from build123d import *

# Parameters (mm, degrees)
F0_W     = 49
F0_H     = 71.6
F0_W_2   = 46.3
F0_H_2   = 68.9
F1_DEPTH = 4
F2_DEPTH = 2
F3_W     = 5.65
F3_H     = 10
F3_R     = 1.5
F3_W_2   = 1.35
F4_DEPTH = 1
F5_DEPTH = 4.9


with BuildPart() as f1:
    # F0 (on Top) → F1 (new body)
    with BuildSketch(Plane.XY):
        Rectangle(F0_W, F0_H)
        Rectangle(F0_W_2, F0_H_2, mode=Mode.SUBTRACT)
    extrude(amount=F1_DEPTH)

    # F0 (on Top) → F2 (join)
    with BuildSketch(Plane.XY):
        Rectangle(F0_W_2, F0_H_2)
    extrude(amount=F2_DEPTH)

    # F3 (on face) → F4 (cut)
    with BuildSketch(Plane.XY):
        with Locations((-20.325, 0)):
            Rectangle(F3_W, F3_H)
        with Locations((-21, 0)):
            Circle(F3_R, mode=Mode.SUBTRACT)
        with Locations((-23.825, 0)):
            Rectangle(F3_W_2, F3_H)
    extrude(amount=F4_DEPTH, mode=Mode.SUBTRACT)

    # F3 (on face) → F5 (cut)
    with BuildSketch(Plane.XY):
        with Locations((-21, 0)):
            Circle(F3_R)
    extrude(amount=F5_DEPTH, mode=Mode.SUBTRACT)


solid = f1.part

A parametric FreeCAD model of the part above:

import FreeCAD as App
import Part
import Sketcher
from FreeCAD import Vector
Q = App.Units.Quantity


def add_polygon(sketch, points):
    """Adds a closed chain of lines whose ends are joined by coincident constraints."""
    first, n = sketch.GeometryCount, len(points)
    for a, b in zip(points, points[1:] + points[:1]):
        sketch.addGeometry(Part.LineSegment(App.Vector(*a, 0), App.Vector(*b, 0)), False)
    for i in range(n):
        sketch.addConstraint(Sketcher.Constraint("Coincident", first + i, 2, first + (i + 1) % n, 1))

doc = App.newDocument("Part")
body = doc.addObject("PartDesign::Body", "Body")

# Sketch on XY plane
sketch1 = body.newObject("Sketcher::SketchObject", "Sketch")
sketch1.AttachmentSupport = (doc.getObject("XY_Plane"), [""])
sketch1.MapMode = "FlatFace"
add_polygon(sketch1, [(-24, 36), (-24, -36), (24, -36), (24, 36)])  # lines 0-3
add_polygon(sketch1, [(23, -34), (-23, -34), (-23, 34), (23, 34)])  # lines 4-7
sketch1.addConstraint([
    Sketcher.Constraint("Vertical", 0),
    Sketcher.Constraint("Horizontal", 1),
    Sketcher.Constraint("Vertical", 2),
    Sketcher.Constraint("Horizontal", 3),
    Sketcher.Constraint("Horizontal", 4),
    Sketcher.Constraint("Vertical", 5),
    Sketcher.Constraint("Horizontal", 6),
    Sketcher.Constraint("Vertical", 7),
    Sketcher.Constraint("Symmetric", 0, 2, 2, 2, -1, 1),
    Sketcher.Constraint("Symmetric", 4, 2, 6, 2, -1, 1),
    Sketcher.Constraint("DistanceX", 1, 1, 1, 2, Q("49 mm")),
    Sketcher.Constraint("DistanceX", 4, 2, 4, 1, Q("46.3 mm")),
    Sketcher.Constraint("DistanceY", 0, 2, 0, 1, Q("71.6 mm")),
    Sketcher.Constraint("DistanceY", 5, 1, 5, 2, Q("68.9 mm")),
])
pad1 = body.newObject("PartDesign::Pad", "Pad")
pad1.Profile = sketch1
pad1.Length = 4

# Sketch on XY plane
sketch2 = body.newObject("Sketcher::SketchObject", "Sketch001")
sketch2.AttachmentSupport = (doc.getObject("XY_Plane"), [""])
sketch2.MapMode = "FlatFace"
add_polygon(sketch2, [(-23, 34), (-23, -34), (23, -34), (23, 34)])  # lines 0-3
sketch2.addConstraint([
    Sketcher.Constraint("Vertical", 0),
    Sketcher.Constraint("Horizontal", 1),
    Sketcher.Constraint("Vertical", 2),
    Sketcher.Constraint("Horizontal", 3),
    Sketcher.Constraint("Symmetric", 0, 2, 2, 2, -1, 1),
    Sketcher.Constraint("DistanceX", 1, 1, 1, 2, Q("46.3 mm")),
    Sketcher.Constraint("DistanceY", 0, 2, 0, 1, Q("68.9 mm")),
])
pad2 = body.newObject("PartDesign::Pad", "Pad001")
pad2.Profile = sketch2
pad2.Length = 2

# Sketch on XY plane
sketch3 = body.newObject("Sketcher::SketchObject", "Sketch002")
sketch3.AttachmentSupport = (doc.getObject("XY_Plane"), [""])
sketch3.MapMode = "FlatFace"
add_polygon(sketch3, [(-17.5, -5), (-17.5, 5), (-24.5, 5), (-24.5, -5)])  # lines 0-3
sketch3.addGeometry(Part.Circle(Vector(-21, 0, 0), Vector(0, 0, 1), 1.5), False)  # 4
sketch3.addConstraint([
    Sketcher.Constraint("Vertical", 0),
    Sketcher.Constraint("Horizontal", 1),
    Sketcher.Constraint("Vertical", 2),
    Sketcher.Constraint("Horizontal", 3),
    Sketcher.Constraint("PointOnObject", 4, 3, -1),
    Sketcher.Constraint("Diameter", 4, Q("3 mm")),
    Sketcher.Constraint("DistanceX", 1, 2, 1, 1, Q("7 mm")),
    Sketcher.Constraint("DistanceY", 0, 1, 0, 2, Q("10 mm")),
    Sketcher.Constraint("DistanceX", 4, 3, -1, 1, Q("21 mm")),
    Sketcher.Constraint("DistanceY", -1, 1, 0, 2, Q("5 mm")),
    Sketcher.Constraint("DistanceX", 0, 2, -1, 1, Q("17.5 mm")),
])
pocket1 = body.newObject("PartDesign::Pocket", "Pocket")
pocket1.Profile = sketch3
pocket1.Length = 1
pocket1.Reversed = True

# Sketch on XY plane
sketch4 = body.newObject("Sketcher::SketchObject", "Sketch003")
sketch4.AttachmentSupport = (doc.getObject("XY_Plane"), [""])
sketch4.MapMode = "FlatFace"
sketch4.addGeometry(Part.Circle(Vector(-21, 0, 0), Vector(0, 0, 1), 1.5), False)
sketch4.addConstraint([
    Sketcher.Constraint("PointOnObject", 0, 3, -1),
    Sketcher.Constraint("Diameter", 0, Q("3 mm")),
    Sketcher.Constraint("DistanceX", 0, 3, -1, 1, Q("21 mm")),
])
pocket2 = body.newObject("PartDesign::Pocket", "Pocket001")
pocket2.Profile = sketch4
pocket2.Length = 4.9
pocket2.Reversed = True

doc.recompute()
